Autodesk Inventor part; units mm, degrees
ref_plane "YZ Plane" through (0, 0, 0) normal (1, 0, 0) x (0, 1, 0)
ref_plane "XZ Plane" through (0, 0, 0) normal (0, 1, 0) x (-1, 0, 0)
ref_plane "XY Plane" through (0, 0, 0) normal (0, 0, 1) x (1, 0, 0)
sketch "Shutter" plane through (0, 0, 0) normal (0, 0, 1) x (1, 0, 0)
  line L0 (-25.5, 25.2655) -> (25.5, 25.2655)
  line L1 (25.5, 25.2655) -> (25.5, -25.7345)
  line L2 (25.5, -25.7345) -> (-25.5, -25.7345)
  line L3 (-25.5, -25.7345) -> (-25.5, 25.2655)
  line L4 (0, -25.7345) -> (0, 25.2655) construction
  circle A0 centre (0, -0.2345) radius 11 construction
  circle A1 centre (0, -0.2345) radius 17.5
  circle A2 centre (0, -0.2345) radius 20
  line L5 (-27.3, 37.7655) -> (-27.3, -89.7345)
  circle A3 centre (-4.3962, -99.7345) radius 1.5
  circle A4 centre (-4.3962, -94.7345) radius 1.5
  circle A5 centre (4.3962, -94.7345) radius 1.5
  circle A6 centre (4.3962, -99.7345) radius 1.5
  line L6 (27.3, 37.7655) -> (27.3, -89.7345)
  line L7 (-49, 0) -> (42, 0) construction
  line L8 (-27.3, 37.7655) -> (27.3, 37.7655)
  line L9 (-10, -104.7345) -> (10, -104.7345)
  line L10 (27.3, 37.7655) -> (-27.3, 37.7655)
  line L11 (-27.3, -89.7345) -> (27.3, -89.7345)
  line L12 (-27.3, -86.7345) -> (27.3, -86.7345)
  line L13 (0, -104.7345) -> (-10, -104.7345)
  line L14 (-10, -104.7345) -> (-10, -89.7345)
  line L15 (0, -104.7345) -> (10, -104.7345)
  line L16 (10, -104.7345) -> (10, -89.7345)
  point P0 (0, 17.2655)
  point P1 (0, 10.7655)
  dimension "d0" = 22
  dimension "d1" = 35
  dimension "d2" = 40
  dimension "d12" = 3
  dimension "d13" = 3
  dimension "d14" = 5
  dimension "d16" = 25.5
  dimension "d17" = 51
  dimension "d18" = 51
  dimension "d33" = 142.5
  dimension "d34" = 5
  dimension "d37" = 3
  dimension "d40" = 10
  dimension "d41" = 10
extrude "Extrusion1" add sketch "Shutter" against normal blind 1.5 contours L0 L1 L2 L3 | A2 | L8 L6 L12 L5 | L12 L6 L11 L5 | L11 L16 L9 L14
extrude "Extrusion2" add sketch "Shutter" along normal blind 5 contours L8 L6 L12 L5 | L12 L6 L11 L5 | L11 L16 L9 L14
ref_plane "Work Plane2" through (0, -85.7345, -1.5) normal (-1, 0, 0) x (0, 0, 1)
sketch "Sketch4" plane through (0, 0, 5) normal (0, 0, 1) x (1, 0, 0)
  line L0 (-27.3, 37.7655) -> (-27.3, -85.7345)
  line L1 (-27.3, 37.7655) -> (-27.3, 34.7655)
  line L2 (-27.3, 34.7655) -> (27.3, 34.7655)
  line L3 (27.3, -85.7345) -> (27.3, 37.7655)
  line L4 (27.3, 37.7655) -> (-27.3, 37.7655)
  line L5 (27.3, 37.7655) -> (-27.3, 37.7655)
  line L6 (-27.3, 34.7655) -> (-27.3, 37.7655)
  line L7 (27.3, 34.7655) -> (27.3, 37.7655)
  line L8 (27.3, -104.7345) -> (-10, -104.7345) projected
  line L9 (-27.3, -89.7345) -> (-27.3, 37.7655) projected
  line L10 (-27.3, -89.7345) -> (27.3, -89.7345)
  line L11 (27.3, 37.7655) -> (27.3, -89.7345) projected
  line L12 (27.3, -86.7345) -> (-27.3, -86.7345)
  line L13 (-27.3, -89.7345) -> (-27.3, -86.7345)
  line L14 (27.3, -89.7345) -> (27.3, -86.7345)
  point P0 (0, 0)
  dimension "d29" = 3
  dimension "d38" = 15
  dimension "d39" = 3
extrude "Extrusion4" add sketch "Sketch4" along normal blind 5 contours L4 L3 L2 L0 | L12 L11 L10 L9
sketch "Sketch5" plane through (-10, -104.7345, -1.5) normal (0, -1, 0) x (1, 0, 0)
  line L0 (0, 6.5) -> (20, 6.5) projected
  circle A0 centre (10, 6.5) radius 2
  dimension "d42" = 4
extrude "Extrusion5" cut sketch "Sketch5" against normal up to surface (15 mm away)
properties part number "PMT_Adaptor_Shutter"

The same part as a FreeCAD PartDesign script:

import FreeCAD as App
import Part
import Sketcher

V = App.Vector
Q = App.Units.Quantity


def add_polygon(sketch, points):
    """Adds a closed chain of lines whose ends are joined by coincident constraints."""
    first, n = sketch.GeometryCount, len(points)
    for a, b in zip(points, points[1:] + points[:1]):
        sketch.addGeometry(Part.LineSegment(App.Vector(*a, 0), App.Vector(*b, 0)), False)
    for i in range(n):
        sketch.addConstraint(Sketcher.Constraint("Coincident", first + i, 2, first + (i + 1) % n, 1))

doc = App.newDocument("Part")
body = doc.addObject("PartDesign::Body", "Body")

# Sketch on XY plane
sketch1 = body.newObject("Sketcher::SketchObject", "Sketch")
sketch1.AttachmentSupport = (doc.getObject("XY_Plane"), [""])
sketch1.MapMode = "FlatFace"
add_polygon(sketch1, [(27.3, 37.8), (-27.3, 37.8), (-27.3, -89.7), (-10, -89.7), (-10, -104.7), (10, -104.7), (10, -89.7), (27.3, -89.7)])  # lines 0-7
sketch1.addGeometry(Part.Circle(V(0, -0.2, 0), V(0, 0, 1), 17.5), False)  # 8
sketch1.addGeometry(Part.Circle(V(4.4, -94.7, 0), V(0, 0, 1), 1.5), False)  # 9
sketch1.addGeometry(Part.Circle(V(-4.4, -99.7, 0), V(0, 0, 1), 1.5), False)  # 10
sketch1.addGeometry(Part.Circle(V(-4.4, -94.7, 0), V(0, 0, 1), 1.5), False)  # 11
sketch1.addGeometry(Part.Circle(V(4.4, -99.7, 0), V(0, 0, 1), 1.5), False)  # 12
sketch1.addConstraint(Sketcher.Constraint("Horizontal", 0))
sketch1.addConstraint(Sketcher.Constraint("Vertical", 1))
sketch1.addConstraint(Sketcher.Constraint("Horizontal", 2))
sketch1.addConstraint(Sketcher.Constraint("Vertical", 3))
sketch1.addConstraint(Sketcher.Constraint("Horizontal", 4))
sketch1.addConstraint(Sketcher.Constraint("Vertical", 5))
sketch1.addConstraint(Sketcher.Constraint("Horizontal", 6))
sketch1.addConstraint(Sketcher.Constraint("Vertical", 7))
sketch1.addConstraint(Sketcher.Constraint("Equal", 9, 10))
sketch1.addConstraint(Sketcher.Constraint("Equal", 10, 11))
sketch1.addConstraint(Sketcher.Constraint("Equal", 11, 12))
sketch1.addConstraint(Sketcher.Constraint("Symmetric", 9, 3, 11, 3, -2))
sketch1.addConstraint(Sketcher.Constraint("Symmetric", 10, 3, 12, 3, -2))
sketch1.addConstraint(Sketcher.Constraint("Symmetric", 2, 2, 5, 2, -2))
sketch1.addConstraint(Sketcher.Constraint("PointOnObject", 8, 3, -2))
sketch1.addConstraint(Sketcher.Constraint("Vertical", 10, 3, 11, 3))
sketch1.addConstraint(Sketcher.Constraint("Equal", 2, 6))
sketch1.addConstraint(Sketcher.Constraint("Diameter", 8, Q("35 mm")))
sketch1.addConstraint(Sketcher.Constraint("Diameter", 9, Q("3 mm")))
sketch1.addConstraint(Sketcher.Constraint("DistanceX", 2, 2, -1, 1, Q("10 mm")))
sketch1.addConstraint(Sketcher.Constraint("DistanceY", 10, 3, 9, 3, Q("5 mm")))
sketch1.addConstraint(Sketcher.Constraint("DistanceY", 11, 3, 1, 2, Q("5 mm")))
sketch1.addConstraint(Sketcher.Constraint("DistanceY", 3, 2, 10, 3, Q("5 mm")))
sketch1.addConstraint(Sketcher.Constraint("DistanceX", 0, 2, 0, 1, Q("54.6 mm")))
sketch1.addConstraint(Sketcher.Constraint("DistanceY", 1, 2, 1, 1, Q("127.5 mm")))
sketch1.addConstraint(Sketcher.Constraint("DistanceY", 8, 3, 0, 2, Q("38 mm")))
sketch1.addConstraint(Sketcher.Constraint("DistanceY", 8, 3, -1, 1, Q("0.2345 mm")))
sketch1.addConstraint(Sketcher.Constraint("DistanceX", -1, 1, 9, 3, Q("4.3962 mm")))
pad1 = body.newObject("PartDesign::Pad", "Pad")
pad1.Profile = sketch1
pad1.Length = 1.5
pad1.Reversed = True

# Sketch on XY plane
sketch2 = body.newObject("Sketcher::SketchObject", "Sketch001")
sketch2.AttachmentSupport = (doc.getObject("XY_Plane"), [""])
sketch2.MapMode = "FlatFace"
add_polygon(sketch2, [(27.3, 37.8), (-27.3, 37.8), (-27.3, -89.7), (-10, -89.7), (-10, -104.7), (10, -104.7), (10, -89.7), (27.3, -89.7)])  # lines 0-7
add_polygon(sketch2, [(-25.5, -25.7), (-25.5, 25.3), (25.5, 25.3), (25.5, -25.7)])  # lines 8-11
sketch2.addGeometry(Part.Circle(V(4.4, -94.7, 0), V(0, 0, 1), 1.5), False)  # 12
sketch2.addGeometry(Part.Circle(V(-4.4, -99.7, 0), V(0, 0, 1), 1.5), False)  # 13
sketch2.addGeometry(Part.Circle(V(-4.4, -94.7, 0), V(0, 0, 1), 1.5), False)  # 14
sketch2.addGeometry(Part.Circle(V(4.4, -99.7, 0), V(0, 0, 1), 1.5), False)  # 15
sketch2.addConstraint(Sketcher.Constraint("Horizontal", 0))
sketch2.addConstraint(Sketcher.Constraint("Vertical", 1))
sketch2.addConstraint(Sketcher.Constraint("Horizontal", 2))
sketch2.addConstraint(Sketcher.Constraint("Vertical", 3))
sketch2.addConstraint(Sketcher.Constraint("Horizontal", 4))
sketch2.addConstraint(Sketcher.Constraint("Vertical", 5))
sketch2.addConstraint(Sketcher.Constraint("Horizontal", 6))
sketch2.addConstraint(Sketcher.Constraint("Vertical", 7))
sketch2.addConstraint(Sketcher.Constraint("Vertical", 8))
sketch2.addConstraint(Sketcher.Constraint("Horizontal", 9))
sketch2.addConstraint(Sketcher.Constraint("Vertical", 10))
sketch2.addConstraint(Sketcher.Constraint("Horizontal", 11))
sketch2.addConstraint(Sketcher.Constraint("Equal", 12, 13))
sketch2.addConstraint(Sketcher.Constraint("Equal", 13, 14))
sketch2.addConstraint(Sketcher.Constraint("Equal", 14, 15))
sketch2.addConstraint(Sketcher.Constraint("Symmetric", 12, 3, 14, 3, -2))
sketch2.addConstraint(Sketcher.Constraint("Symmetric", 13, 3, 15, 3, -2))
sketch2.addConstraint(Sketcher.Constraint("Symmetric", 2, 2, 5, 2, -2))
sketch2.addConstraint(Sketcher.Constraint("Vertical", 13, 3, 14, 3))
sketch2.addConstraint(Sketcher.Constraint("Equal", 2, 6))
sketch2.addConstraint(Sketcher.Constraint("Equal", 11, 8))
sketch2.addConstraint(Sketcher.Constraint("Diameter", 12, Q("3 mm")))
sketch2.addConstraint(Sketcher.Constraint("DistanceX", 9, 1, 9, 2, Q("51 mm")))
sketch2.addConstraint(Sketcher.Constraint("DistanceX", 2, 2, -1, 1, Q("10 mm")))
sketch2.addConstraint(Sketcher.Constraint("DistanceY", 13, 3, 12, 3, Q("5 mm")))
sketch2.addConstraint(Sketcher.Constraint("DistanceY", 14, 3, 1, 2, Q("5 mm")))
sketch2.addConstraint(Sketcher.Constraint("DistanceY", 3, 2, 13, 3, Q("5 mm")))
sketch2.addConstraint(Sketcher.Constraint("DistanceX", 8, 2, -1, 1, Q("25.5 mm")))
sketch2.addConstraint(Sketcher.Constraint("DistanceX", 0, 2, 0, 1, Q("54.6 mm")))
sketch2.addConstraint(Sketcher.Constraint("DistanceY", 1, 2, 1, 1, Q("127.5 mm")))
sketch2.addConstraint(Sketcher.Constraint("DistanceY", 1, 2, 8, 2, Q("115 mm")))
sketch2.addConstraint(Sketcher.Constraint("DistanceX", -1, 1, 12, 3, Q("4.3962 mm")))
sketch2.addConstraint(Sketcher.Constraint("DistanceY", 12, 3, -1, 1, Q("94.7345 mm")))
pad2 = body.newObject("PartDesign::Pad", "Pad001")
pad2.Profile = sketch2
pad2.Length = 5

# Sketch on XY plane
sketch3 = body.newObject("Sketcher::SketchObject", "Sketch002")
sketch3.AttachmentSupport = (doc.getObject("XY_Plane"), [""])
sketch3.MapMode = "FlatFace"
sketch3.AttachmentOffset = App.Placement(V(0, 0, 5), App.Rotation())
add_polygon(sketch3, [(27.3, 37.8), (-27.3, 37.8), (-27.3, 34.8), (27.3, 34.8)])  # lines 0-3
add_polygon(sketch3, [(27.3, -86.7), (-27.3, -86.7), (-27.3, -89.7), (27.3, -89.7)])  # lines 4-7
sketch3.addConstraint(Sketcher.Constraint("Horizontal", 0))
sketch3.addConstraint(Sketcher.Constraint("Vertical", 1))
sketch3.addConstraint(Sketcher.Constraint("Horizontal", 2))
sketch3.addConstraint(Sketcher.Constraint("Vertical", 3))
sketch3.addConstraint(Sketcher.Constraint("Horizontal", 4))
sketch3.addConstraint(Sketcher.Constraint("Vertical", 5))
sketch3.addConstraint(Sketcher.Constraint("Horizontal", 6))
sketch3.addConstraint(Sketcher.Constraint("Vertical", 7))
sketch3.addConstraint(Sketcher.Constraint("Vertical", 1, 2, 4, 2))
sketch3.addConstraint(Sketcher.Constraint("Vertical", 3, 2, 6, 2))
sketch3.addConstraint(Sketcher.Constraint("Equal", 3, 5))
sketch3.addConstraint(Sketcher.Constraint("DistanceY", 1, 2, 1, 1, Q("3 mm")))
sketch3.addConstraint(Sketcher.Constraint("DistanceX", 0, 2, 0, 1, Q("54.6 mm")))
sketch3.addConstraint(Sketcher.Constraint("DistanceX", 0, 2, -1, 1, Q("27.3 mm")))
sketch3.addConstraint(Sketcher.Constraint("DistanceY", 4, 2, 1, 2, Q("121.5 mm")))
sketch3.addConstraint(Sketcher.Constraint("DistanceY", -1, 1, 0, 2, Q("37.7655 mm")))
pad3 = body.newObject("PartDesign::Pad", "Pad002")
pad3.Profile = sketch3
pad3.Length = 5

# Sketch on XZ plane
sketch4 = body.newObject("Sketcher::SketchObject", "Sketch003")
sketch4.AttachmentSupport = (doc.getObject("XZ_Plane"), [""])
sketch4.MapMode = "FlatFace"
sketch4.AttachmentOffset = App.Placement(V(0, 0, 104.7345), App.Rotation())
sketch4.addGeometry(Part.Circle(V(0, 5, 0), V(0, 0, 1), 2), False)
sketch4.addConstraint(Sketcher.Constraint("PointOnObject", 0, 3, -2))
sketch4.addConstraint(Sketcher.Constraint("Diameter", 0, Q("4 mm")))
sketch4.addConstraint(Sketcher.Constraint("DistanceY", -1, 1, 0, 3, Q("5 mm")))
pocket1 = body.newObject("PartDesign::Pocket", "Pocket")
pocket1.Profile = sketch4
pocket1.Length = 15

doc.recompute()
